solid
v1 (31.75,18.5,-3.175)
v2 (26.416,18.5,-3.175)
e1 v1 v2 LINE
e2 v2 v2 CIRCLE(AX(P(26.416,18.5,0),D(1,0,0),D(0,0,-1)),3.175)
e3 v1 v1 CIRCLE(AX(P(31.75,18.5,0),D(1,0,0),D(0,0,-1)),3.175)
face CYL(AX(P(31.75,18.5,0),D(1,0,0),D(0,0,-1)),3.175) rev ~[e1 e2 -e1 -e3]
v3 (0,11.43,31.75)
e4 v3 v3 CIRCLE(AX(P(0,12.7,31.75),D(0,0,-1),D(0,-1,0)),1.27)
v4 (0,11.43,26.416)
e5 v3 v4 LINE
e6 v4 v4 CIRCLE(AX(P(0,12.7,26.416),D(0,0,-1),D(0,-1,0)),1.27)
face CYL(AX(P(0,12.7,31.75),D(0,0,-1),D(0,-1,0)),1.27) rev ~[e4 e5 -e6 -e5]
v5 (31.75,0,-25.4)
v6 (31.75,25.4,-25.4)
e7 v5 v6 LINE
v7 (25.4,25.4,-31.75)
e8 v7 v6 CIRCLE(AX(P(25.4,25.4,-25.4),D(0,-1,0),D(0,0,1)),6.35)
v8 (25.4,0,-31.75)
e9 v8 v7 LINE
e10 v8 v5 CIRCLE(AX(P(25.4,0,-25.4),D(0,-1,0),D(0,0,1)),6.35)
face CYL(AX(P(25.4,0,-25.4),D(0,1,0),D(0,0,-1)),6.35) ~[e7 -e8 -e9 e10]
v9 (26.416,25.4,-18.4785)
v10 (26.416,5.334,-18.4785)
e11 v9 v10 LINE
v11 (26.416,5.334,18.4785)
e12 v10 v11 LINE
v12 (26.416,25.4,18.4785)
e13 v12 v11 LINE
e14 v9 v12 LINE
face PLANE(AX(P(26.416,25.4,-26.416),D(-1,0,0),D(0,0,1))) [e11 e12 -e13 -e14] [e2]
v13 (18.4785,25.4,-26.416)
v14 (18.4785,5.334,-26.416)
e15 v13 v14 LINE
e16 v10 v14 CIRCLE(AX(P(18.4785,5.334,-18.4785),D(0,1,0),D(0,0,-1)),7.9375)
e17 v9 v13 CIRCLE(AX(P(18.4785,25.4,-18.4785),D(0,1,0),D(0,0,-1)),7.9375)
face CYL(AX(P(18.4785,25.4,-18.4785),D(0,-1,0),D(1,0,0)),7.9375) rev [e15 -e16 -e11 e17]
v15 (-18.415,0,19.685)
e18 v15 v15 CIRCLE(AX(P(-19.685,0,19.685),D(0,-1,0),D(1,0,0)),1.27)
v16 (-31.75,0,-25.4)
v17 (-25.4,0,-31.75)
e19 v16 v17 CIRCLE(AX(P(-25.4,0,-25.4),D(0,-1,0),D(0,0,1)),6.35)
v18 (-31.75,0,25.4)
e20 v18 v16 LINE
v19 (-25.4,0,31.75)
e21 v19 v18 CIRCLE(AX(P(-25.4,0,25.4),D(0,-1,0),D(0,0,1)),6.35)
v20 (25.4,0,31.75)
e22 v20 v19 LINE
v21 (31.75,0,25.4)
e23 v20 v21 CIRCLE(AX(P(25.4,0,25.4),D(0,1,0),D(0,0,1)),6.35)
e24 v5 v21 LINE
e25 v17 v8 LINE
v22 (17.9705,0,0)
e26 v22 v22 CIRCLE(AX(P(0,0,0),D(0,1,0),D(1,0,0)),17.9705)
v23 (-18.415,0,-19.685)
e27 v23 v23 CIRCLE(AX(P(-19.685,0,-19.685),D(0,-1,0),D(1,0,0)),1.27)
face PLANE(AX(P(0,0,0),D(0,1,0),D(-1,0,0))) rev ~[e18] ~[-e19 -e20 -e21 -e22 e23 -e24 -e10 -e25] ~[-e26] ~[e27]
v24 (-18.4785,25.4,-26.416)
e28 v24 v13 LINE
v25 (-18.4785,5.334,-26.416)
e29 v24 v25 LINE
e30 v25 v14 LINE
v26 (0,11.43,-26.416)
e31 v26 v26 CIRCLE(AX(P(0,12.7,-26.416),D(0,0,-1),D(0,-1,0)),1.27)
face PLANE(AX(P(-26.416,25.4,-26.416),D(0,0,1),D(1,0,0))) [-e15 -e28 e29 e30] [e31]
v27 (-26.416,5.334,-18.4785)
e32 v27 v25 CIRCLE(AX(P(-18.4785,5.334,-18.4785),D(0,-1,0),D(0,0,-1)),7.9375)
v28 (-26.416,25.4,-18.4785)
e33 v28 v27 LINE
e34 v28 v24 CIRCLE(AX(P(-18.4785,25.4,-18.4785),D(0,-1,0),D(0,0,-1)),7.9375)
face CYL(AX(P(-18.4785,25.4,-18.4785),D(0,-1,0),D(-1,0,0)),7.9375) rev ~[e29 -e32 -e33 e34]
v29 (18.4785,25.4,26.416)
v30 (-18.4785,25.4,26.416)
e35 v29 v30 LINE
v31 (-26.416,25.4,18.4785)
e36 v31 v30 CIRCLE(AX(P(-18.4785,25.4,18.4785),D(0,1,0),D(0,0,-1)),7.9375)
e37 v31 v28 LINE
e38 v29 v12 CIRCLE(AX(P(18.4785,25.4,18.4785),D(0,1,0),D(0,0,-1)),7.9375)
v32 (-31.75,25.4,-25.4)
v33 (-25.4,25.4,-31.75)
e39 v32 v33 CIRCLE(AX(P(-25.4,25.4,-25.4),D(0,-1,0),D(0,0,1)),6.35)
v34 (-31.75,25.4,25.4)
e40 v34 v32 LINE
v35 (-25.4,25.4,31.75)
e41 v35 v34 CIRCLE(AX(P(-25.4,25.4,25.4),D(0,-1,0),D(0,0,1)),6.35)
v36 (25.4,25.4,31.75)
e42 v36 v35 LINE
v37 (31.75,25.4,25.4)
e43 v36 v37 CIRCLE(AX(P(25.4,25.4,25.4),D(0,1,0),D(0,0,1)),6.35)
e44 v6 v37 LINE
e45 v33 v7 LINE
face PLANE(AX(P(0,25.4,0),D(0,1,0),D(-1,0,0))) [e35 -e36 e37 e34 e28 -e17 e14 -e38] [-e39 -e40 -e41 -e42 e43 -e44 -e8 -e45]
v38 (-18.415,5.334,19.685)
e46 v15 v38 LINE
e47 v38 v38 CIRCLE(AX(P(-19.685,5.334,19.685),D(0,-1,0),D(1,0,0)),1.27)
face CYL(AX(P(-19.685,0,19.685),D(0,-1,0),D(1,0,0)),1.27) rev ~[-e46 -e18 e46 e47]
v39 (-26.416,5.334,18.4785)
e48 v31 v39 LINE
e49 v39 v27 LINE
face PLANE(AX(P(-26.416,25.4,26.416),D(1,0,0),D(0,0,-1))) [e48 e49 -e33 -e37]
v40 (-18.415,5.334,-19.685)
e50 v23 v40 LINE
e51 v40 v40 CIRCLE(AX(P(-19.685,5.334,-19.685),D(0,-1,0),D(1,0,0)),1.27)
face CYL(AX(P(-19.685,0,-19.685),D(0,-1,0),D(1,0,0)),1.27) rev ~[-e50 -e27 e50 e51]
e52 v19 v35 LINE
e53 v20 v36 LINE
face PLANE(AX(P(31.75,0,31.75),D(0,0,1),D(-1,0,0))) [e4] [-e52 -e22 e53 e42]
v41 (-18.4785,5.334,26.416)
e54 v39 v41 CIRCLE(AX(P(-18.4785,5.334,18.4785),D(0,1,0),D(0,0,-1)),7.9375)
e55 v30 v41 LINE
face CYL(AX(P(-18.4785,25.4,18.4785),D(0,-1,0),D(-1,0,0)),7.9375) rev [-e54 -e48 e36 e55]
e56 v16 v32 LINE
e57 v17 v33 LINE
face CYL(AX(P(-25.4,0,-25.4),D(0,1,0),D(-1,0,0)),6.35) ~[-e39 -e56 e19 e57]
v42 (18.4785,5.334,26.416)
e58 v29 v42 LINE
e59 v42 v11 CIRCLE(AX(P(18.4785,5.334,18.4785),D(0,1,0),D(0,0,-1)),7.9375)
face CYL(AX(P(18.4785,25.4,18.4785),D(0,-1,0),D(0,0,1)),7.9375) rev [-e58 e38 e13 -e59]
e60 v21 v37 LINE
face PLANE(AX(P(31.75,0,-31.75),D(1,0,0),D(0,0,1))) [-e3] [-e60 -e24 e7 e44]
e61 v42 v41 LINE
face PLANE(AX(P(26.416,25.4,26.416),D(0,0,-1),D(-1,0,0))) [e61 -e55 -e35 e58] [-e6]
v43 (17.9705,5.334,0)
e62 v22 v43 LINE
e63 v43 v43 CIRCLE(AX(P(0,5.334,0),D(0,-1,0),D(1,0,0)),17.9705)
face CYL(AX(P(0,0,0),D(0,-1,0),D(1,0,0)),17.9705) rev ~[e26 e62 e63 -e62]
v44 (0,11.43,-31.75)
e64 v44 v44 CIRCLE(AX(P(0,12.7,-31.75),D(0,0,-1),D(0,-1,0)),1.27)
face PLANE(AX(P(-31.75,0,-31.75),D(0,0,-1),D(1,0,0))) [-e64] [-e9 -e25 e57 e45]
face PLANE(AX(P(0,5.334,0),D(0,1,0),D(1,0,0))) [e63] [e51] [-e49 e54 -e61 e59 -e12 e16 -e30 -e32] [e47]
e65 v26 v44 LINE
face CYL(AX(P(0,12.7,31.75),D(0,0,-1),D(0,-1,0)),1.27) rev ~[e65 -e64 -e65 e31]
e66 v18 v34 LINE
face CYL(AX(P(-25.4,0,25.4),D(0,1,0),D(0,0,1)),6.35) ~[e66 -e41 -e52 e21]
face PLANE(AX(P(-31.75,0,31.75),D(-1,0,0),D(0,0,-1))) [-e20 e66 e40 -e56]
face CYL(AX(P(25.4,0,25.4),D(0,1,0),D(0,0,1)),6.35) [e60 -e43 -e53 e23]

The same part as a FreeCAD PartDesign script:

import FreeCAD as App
import Part
import Sketcher
from FreeCAD import Vector
Q = App.Units.Quantity


def edges_at(feature, points):
    """Names of the edges that pass closest to the given points."""
    edges = feature.Shape.Edges
    near = lambda p: min(range(len(edges)), key=lambda i: edges[i].distToShape(Part.Vertex(*p))[0])
    return sorted({f"Edge{near(p) + 1}" for p in points})


def add_polygon(sketch, points):
    """Adds a closed chain of lines whose ends are joined by coincident constraints."""
    first, n = sketch.GeometryCount, len(points)
    for a, b in zip(points, points[1:] + points[:1]):
        sketch.addGeometry(Part.LineSegment(App.Vector(*a, 0), App.Vector(*b, 0)), False)
    for i in range(n):
        sketch.addConstraint(Sketcher.Constraint("Coincident", first + i, 2, first + (i + 1) % n, 1))

doc = App.newDocument("Part")
body = doc.addObject("PartDesign::Body", "Body")

# Sketch on XZ plane
sketch1 = body.newObject("Sketcher::SketchObject", "Sketch")
sketch1.AttachmentSupport = (doc.getObject("XZ_Plane"), [""])
sketch1.MapMode = "FlatFace"
add_polygon(sketch1, [(-32, 32), (32, 32), (32, -32), (-32, -32)])  # lines 0-3
sketch1.addConstraint(Sketcher.Constraint("Horizontal", 0))
sketch1.addConstraint(Sketcher.Constraint("Vertical", 1))
sketch1.addConstraint(Sketcher.Constraint("Horizontal", 2))
sketch1.addConstraint(Sketcher.Constraint("Vertical", 3))
sketch1.addConstraint(Sketcher.Constraint("Symmetric", 0, 2, 2, 2, -1, 1))
sketch1.addConstraint(Sketcher.Constraint("Equal", 2, 1))
sketch1.addConstraint(Sketcher.Constraint("DistanceX", 0, 1, 0, 2, Q("2.5 in")))
pad1 = body.newObject("PartDesign::Pad", "Pad")
pad1.Profile = sketch1
pad1.Length = Q("1 in")
pad1.Reversed = True
doc.recompute()

fillet = body.newObject("PartDesign::Fillet", "Fillet")
fillet.Base = (pad1, edges_at(pad1, [
    (31.75, 12.7, 31.75),
    (31.75, 12.7, -31.75),
    (-31.75, 12.7, -31.75),
    (-31.75, 12.7, 31.75),
]))
fillet.Radius = Q("0.25 in")

# Sketch on XZ plane
sketch2 = body.newObject("Sketcher::SketchObject", "Sketch001")
sketch2.AttachmentSupport = (doc.getObject("XZ_Plane"), [""])
sketch2.MapMode = "FlatFace"
sketch2.AttachmentOffset = App.Placement(Vector(0, 0, -1 * 25.4), App.Rotation())
add_polygon(sketch2, [(26, -26), (-26, -26), (-26, 26), (26, 26)])  # lines 0-3
sketch2.addConstraint(Sketcher.Constraint("Horizontal", 0))
sketch2.addConstraint(Sketcher.Constraint("Vertical", 1))
sketch2.addConstraint(Sketcher.Constraint("Horizontal", 2))
sketch2.addConstraint(Sketcher.Constraint("Vertical", 3))
sketch2.addConstraint(Sketcher.Constraint("Symmetric", 0, 2, 2, 2, -1, 1))
sketch2.addConstraint(Sketcher.Constraint("Equal", 2, 1))
sketch2.addConstraint(Sketcher.Constraint("DistanceX", 0, 2, 0, 1, Q("2.08 in")))
pocket1 = body.newObject("PartDesign::Pocket", "Pocket")
pocket1.Profile = sketch2
pocket1.Length = Q("0.79 in")
pocket1.Reversed = True
doc.recompute()

fillet2 = body.newObject("PartDesign::Fillet", "Fillet001")
fillet2.Base = (pocket1, edges_at(pocket1, [
    (-26.416, 15.367, 26.416),
    (-26.416, 15.367, -26.416),
    (26.416, 15.367, -26.416),
    (26.416, 15.367, 26.416),
]))
fillet2.Radius = Q("0.3125 in")

# Sketch on XY plane
sketch3 = body.newObject("Sketcher::SketchObject", "Sketch002")
sketch3.AttachmentSupport = (doc.getObject("XY_Plane"), [""])
sketch3.MapMode = "FlatFace"
sketch3.AttachmentOffset = App.Placement(Vector(0, 0, 1.25 * 25.4), App.Rotation())
sketch3.addGeometry(Part.Circle(Vector(0, 12.7, 0), Vector(0, 0, 1), 1.3), False)
sketch3.addConstraint(Sketcher.Constraint("PointOnObject", 0, 3, -2))
sketch3.addConstraint(Sketcher.Constraint("Diameter", 0, Q("0.1 in")))
sketch3.addConstraint(Sketcher.Constraint("DistanceY", -1, 1, 0, 3, Q("0.5 in")))
doc.recompute()
hole = body.newObject("PartDesign::Hole", "Hole")
hole.Profile = sketch3
hole.ThreadType = "None"
hole.Diameter = Q("0.1 in")
hole.DepthType = "Dimension"
hole.Depth = Q("3 in")
hole.DrillPoint = "Angled"
hole.DrillPointAngle = 118

# Sketch on XZ plane
sketch4 = body.newObject("Sketcher::SketchObject", "Sketch003")
sketch4.AttachmentSupport = (doc.getObject("XZ_Plane"), [""])
sketch4.MapMode = "FlatFace"
sketch4.addGeometry(Part.Circle(Vector(0, 0, 0), Vector(0, 0, 1), 18), False)
sketch4.addGeometry(Part.Circle(Vector(-19.7, -19.7, 0), Vector(0, 0, 1), 1.3), False)
sketch4.addGeometry(Part.Circle(Vector(-19.7, 19.7, 0), Vector(0, 0, 1), 1.3), False)
sketch4.addConstraint(Sketcher.Constraint("Coincident", 0, 3, -1, 1))
sketch4.addConstraint(Sketcher.Constraint("Equal", 1, 2))
sketch4.addConstraint(Sketcher.Constraint("Symmetric", 1, 3, 2, 3, -1))
sketch4.addConstraint(Sketcher.Constraint("Diameter", 1, Q("0.1 in")))
sketch4.addConstraint(Sketcher.Constraint("Diameter", 0, Q("1.415 in")))
sketch4.addConstraint(Sketcher.Constraint("DistanceY", 1, 3, 2, 3, Q("1.55 in")))
sketch4.addConstraint(Sketcher.Constraint("DistanceX", 1, 3, -1, 1, Q("0.775 in")))
pocket2 = body.newObject("PartDesign::Pocket", "Pocket001")
pocket2.Profile = sketch4
pocket2.Length = Q("1 in")

# Sketch on YZ plane
sketch5 = body.newObject("Sketcher::SketchObject", "Sketch004")
sketch5.AttachmentSupport = (doc.getObject("YZ_Plane"), [""])
sketch5.MapMode = "FlatFace"
sketch5.AttachmentOffset = App.Placement(Vector(0, 0, 1.25 * 25.4), App.Rotation())
sketch5.addGeometry(Part.Circle(Vector(18.5, 0, 0), Vector(0, 0, 1), 3.2), False)
sketch5.addConstraint(Sketcher.Constraint("PointOnObject", 0, 3, -1))
sketch5.addConstraint(Sketcher.Constraint("Diameter", 0, Q("0.25 in")))
sketch5.addConstraint(Sketcher.Constraint("DistanceX", -1, 1, 0, 3, 18.5))
pocket3 = body.newObject("PartDesign::Pocket", "Pocket002")
pocket3.Profile = sketch5
pocket3.Length = Q("0.25 in")

doc.recompute()
